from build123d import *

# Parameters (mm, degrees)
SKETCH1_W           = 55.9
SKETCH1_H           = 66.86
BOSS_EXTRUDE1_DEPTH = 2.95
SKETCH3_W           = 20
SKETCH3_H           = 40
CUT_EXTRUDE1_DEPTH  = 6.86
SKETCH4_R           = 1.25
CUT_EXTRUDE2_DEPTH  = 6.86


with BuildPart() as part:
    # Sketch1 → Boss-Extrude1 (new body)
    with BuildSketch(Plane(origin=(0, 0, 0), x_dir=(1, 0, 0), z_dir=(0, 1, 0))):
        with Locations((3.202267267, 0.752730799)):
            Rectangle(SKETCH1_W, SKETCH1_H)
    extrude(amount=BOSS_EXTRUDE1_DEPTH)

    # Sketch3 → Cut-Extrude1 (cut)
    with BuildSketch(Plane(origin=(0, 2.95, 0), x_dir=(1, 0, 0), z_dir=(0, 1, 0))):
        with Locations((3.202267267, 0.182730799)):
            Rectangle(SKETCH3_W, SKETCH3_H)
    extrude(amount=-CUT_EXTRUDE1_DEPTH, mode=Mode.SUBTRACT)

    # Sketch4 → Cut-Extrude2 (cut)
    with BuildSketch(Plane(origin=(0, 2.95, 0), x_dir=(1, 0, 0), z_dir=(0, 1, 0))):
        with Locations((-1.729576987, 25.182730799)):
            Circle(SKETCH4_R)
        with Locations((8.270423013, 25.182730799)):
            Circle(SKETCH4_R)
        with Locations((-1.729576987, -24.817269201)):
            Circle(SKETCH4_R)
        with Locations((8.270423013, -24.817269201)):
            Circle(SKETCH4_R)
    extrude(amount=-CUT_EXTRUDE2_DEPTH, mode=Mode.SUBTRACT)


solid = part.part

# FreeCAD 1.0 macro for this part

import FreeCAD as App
import Part
import Sketcher


def add_polygon(sketch, points):
    """Adds a closed chain of lines whose ends are joined by coincident constraints."""
    first, n = sketch.GeometryCount, len(points)
    for a, b in zip(points, points[1:] + points[:1]):
        sketch.addGeometry(Part.LineSegment(App.Vector(*a, 0), App.Vector(*b, 0)), False)
    for i in range(n):
        sketch.addConstraint(Sketcher.Constraint("Coincident", first + i, 2, first + (i + 1) % n, 1))

doc = App.newDocument("Part")
body = doc.addObject("PartDesign::Body", "Body")

# Sketch on XZ plane
sketch1 = doc.addObject("Sketcher::SketchObject", "Sketch")
body.addObject(sketch1)
sketch1.AttachmentSupport = (doc.XZ_Plane, [""])
sketch1.MapMode = "FlatFace"
add_polygon(sketch1, [(-25, -34), (-25, 33), (31, 33), (31, -34)])  # lines 0-3
sketch1.addConstraint([
    Sketcher.Constraint("Vertical", 0),
    Sketcher.Constraint("Horizontal", 1),
    Sketcher.Constraint("Vertical", 2),
    Sketcher.Constraint("Horizontal", 3),
    Sketcher.Constraint("DistanceX", 1, 1, 1, 2, 55.9),
    Sketcher.Constraint("DistanceY", 0, 1, 0, 2, 66.86),
    Sketcher.Constraint("DistanceY", -1, 1, 0, 2, 32.677269),
    Sketcher.Constraint("DistanceX", 0, 2, -1, 1, 24.747733),
])
pad1 = doc.addObject("PartDesign::Pad", "Pad")
body.addObject(pad1)
pad1.Profile = sketch1
pad1.Length = 2.95
pad1.Reversed = True

# Sketch on XZ plane
sketch2 = doc.addObject("Sketcher::SketchObject", "Sketch001")
body.addObject(sketch2)
sketch2.AttachmentSupport = (doc.XZ_Plane, [""])
sketch2.MapMode = "FlatFace"
sketch2.AttachmentOffset = App.Placement(App.Vector(0, 0, -2.95), App.Rotation())
add_polygon(sketch2, [(-7, -20), (-7, 20), (13, 20), (13, -20)])  # lines 0-3
sketch2.addConstraint([
    Sketcher.Constraint("Vertical", 0),
    Sketcher.Constraint("Horizontal", 1),
    Sketcher.Constraint("Vertical", 2),
    Sketcher.Constraint("Horizontal", 3),
    Sketcher.Constraint("DistanceX", 1, 1, 1, 2, 20.0),
    Sketcher.Constraint("DistanceY", 0, 1, 0, 2, 40.0),
    Sketcher.Constraint("DistanceY", -1, 1, 0, 2, 19.817269),
    Sketcher.Constraint("DistanceX", 0, 2, -1, 1, 6.797733),
])
pocket1 = doc.addObject("PartDesign::Pocket", "Pocket")
body.addObject(pocket1)
pocket1.Profile = sketch2
pocket1.Length = 6.86
pocket1.Reversed = True

# Sketch on XZ plane
sketch3 = doc.addObject("Sketcher::SketchObject", "Sketch002")
body.addObject(sketch3)
sketch3.AttachmentSupport = (doc.XZ_Plane, [""])
sketch3.MapMode = "FlatFace"
sketch3.AttachmentOffset = App.Placement(App.Vector(0, 0, -2.95), App.Rotation())
sketch3.addGeometry([
    Part.Circle(App.Vector(-1.7, -25.2, 0), App.Vector(0, 0, 1), 1.2),
    Part.Circle(App.Vector(8.3, -25.2, 0), App.Vector(0, 0, 1), 1.2),
    Part.Circle(App.Vector(-1.7, 24.8, 0), App.Vector(0, 0, 1), 1.2),
    Part.Circle(App.Vector(8.3, 24.8, 0), App.Vector(0, 0, 1), 1.2),
], False)
sketch3.addConstraint([
    Sketcher.Constraint("Equal", 0, 1),
    Sketcher.Constraint("Equal", 1, 2),
    Sketcher.Constraint("Equal", 2, 3),
    Sketcher.Constraint("Horizontal", 0, 3, 1, 3),
    Sketcher.Constraint("Horizontal", 2, 3, 3, 3),
    Sketcher.Constraint("Vertical", 0, 3, 2, 3),
    Sketcher.Constraint("Vertical", 1, 3, 3, 3),
    Sketcher.Constraint("Diameter", 0, 2.5),
    Sketcher.Constraint("DistanceX", 0, 3, 1, 3, 10.0),
    Sketcher.Constraint("DistanceY", 0, 3, 2, 3, 50.0),
    Sketcher.Constraint("DistanceY", 0, 3, -1, 1, 25.182731),
    Sketcher.Constraint("DistanceX", 0, 3, -1, 1, 1.729577),
])
pocket2 = doc.addObject("PartDesign::Pocket", "Pocket001")
body.addObject(pocket2)
pocket2.Profile = sketch3
pocket2.Length = 6.86
pocket2.Reversed = True

doc.recompute()
